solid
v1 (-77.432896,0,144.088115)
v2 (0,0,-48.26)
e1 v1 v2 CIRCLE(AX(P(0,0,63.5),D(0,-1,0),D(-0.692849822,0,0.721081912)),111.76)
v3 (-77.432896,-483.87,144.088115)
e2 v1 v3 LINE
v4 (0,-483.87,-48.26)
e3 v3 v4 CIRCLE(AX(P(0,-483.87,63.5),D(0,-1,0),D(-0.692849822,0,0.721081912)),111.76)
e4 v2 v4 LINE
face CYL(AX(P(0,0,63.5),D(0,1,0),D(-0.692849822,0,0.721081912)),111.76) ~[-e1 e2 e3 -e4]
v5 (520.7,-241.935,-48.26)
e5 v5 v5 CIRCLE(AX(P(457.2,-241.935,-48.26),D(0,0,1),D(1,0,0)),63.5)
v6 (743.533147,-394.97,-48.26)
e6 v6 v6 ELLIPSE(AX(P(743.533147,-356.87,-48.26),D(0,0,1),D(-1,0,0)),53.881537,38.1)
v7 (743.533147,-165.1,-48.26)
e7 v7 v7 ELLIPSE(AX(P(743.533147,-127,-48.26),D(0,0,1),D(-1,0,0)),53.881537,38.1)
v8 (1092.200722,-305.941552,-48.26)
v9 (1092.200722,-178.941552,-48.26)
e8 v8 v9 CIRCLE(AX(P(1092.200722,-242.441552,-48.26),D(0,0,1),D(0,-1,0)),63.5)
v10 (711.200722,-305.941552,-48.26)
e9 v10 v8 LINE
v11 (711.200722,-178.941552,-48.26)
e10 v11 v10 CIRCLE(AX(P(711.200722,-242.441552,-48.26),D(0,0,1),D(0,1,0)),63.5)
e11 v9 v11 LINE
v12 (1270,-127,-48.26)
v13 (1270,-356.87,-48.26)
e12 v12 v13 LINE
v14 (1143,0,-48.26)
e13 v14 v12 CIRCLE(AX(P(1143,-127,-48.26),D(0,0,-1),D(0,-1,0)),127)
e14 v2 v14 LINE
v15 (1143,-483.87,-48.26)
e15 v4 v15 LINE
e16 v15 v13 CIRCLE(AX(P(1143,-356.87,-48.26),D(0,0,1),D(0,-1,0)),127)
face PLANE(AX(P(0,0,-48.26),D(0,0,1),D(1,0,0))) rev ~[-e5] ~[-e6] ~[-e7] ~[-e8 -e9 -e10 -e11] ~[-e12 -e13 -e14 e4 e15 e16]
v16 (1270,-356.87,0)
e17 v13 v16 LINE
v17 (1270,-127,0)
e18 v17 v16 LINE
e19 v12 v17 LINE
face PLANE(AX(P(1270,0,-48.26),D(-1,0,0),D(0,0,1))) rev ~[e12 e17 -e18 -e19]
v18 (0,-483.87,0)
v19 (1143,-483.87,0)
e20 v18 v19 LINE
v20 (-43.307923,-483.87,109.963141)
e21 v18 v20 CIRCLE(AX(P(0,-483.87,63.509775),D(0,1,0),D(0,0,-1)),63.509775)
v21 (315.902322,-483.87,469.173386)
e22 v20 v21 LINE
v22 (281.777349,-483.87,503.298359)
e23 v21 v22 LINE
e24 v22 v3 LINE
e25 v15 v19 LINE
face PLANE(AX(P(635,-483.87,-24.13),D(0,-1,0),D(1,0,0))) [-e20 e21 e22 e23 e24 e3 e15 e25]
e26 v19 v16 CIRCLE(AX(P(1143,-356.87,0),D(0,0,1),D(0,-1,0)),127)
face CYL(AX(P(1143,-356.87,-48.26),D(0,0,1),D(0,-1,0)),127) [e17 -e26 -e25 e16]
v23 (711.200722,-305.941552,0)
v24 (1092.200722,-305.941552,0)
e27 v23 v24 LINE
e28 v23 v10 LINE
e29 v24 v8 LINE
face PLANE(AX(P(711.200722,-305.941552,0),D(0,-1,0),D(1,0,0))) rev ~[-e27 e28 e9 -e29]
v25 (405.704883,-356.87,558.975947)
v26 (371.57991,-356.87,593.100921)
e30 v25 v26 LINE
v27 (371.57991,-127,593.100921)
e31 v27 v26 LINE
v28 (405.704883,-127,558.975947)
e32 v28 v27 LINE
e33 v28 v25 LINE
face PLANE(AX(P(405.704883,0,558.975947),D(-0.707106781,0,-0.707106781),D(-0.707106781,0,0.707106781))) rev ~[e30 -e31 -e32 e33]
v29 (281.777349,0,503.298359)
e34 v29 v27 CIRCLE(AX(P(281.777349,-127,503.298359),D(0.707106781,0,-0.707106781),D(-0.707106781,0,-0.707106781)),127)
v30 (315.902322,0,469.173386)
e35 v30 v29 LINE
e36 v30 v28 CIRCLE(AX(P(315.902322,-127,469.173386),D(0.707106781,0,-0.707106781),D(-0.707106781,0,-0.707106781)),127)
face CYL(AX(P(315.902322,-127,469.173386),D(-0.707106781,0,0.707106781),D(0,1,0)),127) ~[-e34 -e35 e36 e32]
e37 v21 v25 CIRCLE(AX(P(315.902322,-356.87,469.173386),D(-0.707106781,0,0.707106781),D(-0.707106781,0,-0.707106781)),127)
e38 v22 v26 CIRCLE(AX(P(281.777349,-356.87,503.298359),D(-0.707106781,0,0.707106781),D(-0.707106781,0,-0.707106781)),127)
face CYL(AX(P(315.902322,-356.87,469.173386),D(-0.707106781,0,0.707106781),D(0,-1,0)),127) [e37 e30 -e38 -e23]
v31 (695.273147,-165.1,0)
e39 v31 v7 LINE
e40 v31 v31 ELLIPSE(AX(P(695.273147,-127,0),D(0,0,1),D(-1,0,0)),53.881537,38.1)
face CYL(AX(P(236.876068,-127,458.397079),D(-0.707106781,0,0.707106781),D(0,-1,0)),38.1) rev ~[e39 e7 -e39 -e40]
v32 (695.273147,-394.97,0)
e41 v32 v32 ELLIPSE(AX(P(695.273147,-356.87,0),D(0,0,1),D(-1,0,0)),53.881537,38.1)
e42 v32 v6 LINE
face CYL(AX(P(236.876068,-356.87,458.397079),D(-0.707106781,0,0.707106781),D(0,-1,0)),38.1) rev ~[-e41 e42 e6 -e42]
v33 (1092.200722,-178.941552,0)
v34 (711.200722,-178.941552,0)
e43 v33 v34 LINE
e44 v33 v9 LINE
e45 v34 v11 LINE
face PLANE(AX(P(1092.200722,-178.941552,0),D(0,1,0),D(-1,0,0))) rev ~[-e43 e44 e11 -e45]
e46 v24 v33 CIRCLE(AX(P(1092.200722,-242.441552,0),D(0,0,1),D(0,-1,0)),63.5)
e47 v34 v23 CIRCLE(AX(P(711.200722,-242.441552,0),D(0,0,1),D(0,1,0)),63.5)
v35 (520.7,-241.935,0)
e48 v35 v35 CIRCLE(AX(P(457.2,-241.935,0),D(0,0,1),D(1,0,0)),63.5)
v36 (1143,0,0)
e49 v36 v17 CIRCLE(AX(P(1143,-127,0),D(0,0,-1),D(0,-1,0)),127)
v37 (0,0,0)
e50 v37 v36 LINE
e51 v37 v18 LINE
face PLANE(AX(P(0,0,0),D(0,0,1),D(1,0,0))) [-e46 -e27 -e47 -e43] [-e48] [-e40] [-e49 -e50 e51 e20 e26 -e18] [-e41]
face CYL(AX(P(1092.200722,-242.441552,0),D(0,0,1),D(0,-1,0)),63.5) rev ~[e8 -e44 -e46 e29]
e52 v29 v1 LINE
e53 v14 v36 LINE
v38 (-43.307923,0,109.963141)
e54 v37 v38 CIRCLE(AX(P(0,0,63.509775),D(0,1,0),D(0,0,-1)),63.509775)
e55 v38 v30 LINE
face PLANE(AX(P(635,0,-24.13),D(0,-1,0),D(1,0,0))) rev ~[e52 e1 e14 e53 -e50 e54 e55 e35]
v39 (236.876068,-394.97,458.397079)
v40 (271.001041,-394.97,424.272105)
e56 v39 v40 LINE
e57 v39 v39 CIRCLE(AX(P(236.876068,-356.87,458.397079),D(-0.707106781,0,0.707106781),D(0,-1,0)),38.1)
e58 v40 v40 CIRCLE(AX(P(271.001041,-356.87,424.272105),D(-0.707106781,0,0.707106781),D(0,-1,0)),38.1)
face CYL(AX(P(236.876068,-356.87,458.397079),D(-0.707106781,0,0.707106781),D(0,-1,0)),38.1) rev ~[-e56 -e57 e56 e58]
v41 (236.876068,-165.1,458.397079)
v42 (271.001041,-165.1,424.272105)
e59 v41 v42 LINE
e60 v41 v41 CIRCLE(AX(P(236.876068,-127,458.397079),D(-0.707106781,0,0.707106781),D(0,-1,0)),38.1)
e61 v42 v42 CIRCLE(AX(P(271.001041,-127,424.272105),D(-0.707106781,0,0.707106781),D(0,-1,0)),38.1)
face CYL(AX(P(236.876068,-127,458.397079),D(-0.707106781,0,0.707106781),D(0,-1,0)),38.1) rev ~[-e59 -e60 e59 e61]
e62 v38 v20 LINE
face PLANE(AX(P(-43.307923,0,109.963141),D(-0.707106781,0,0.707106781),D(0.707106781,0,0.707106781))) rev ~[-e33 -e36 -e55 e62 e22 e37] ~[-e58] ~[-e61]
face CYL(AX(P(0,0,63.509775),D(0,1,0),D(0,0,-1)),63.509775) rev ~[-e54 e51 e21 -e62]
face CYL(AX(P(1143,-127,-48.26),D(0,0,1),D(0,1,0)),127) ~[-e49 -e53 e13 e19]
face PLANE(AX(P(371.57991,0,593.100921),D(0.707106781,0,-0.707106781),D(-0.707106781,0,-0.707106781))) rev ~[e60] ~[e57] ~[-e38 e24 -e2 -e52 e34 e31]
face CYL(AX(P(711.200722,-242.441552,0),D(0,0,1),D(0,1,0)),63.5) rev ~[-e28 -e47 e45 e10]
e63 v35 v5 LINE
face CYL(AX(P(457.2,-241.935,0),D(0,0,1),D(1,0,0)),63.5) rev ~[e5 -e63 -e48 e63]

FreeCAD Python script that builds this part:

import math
import FreeCAD as App
import Part
import Sketcher

V = App.Vector
Q = App.Units.Quantity


def edges_at(feature, points):
    """Names of the edges that pass closest to the given points."""
    edges = feature.Shape.Edges
    near = lambda p: min(range(len(edges)), key=lambda i: edges[i].distToShape(Part.Vertex(*p))[0])
    return sorted({f"Edge{near(p) + 1}" for p in points})

doc = App.newDocument("Part")
params = doc.addObject("Spreadsheet::Sheet", "Params")
for row, (alias, value) in enumerate([
    ("sketch1_radius", "4.4 in"),
    ("sketch1_width", "50 in"),
    ("sketch1_length", "25 in"),
    ("sketch1_length2", "25 in"),
    ("sketch1_height", "1.9 in"),
    ("pad1_length", "19.05 in"),
    ("sketch2_diameter", "5 in"),
    ("sketch2_width", "15 in"),
    ("fillet_radius", "5 in"),
    ("sketch3_diameter", "3 in"),
], start=1):
    params.set(f"A{row}", alias)
    params.set(f"B{row}", "=" + value)
    params.setAlias(f"B{row}", alias)

body = doc.addObject("PartDesign::Body", "Body")

# Sketch on XZ plane
sketch1 = body.newObject("Sketcher::SketchObject", "Sketch")
sketch1.AttachmentSupport = (doc.getObject("XZ_Plane"), [""])
sketch1.MapMode = "FlatFace"
sketch1.addGeometry([
    Part.LineSegment(V(0, -48.26, 0), V(1270, -48.26, 0)),  # 0
    Part.LineSegment(V(1270, -48.26, 0), V(1270, 0, 0)),  # 1
    Part.LineSegment(V(1270, 0, 0), V(0, 0, 0)),  # 2
    Part.ArcOfCircle(Part.Circle(V(0, 63.509775, 0), V(0, 0, 1), 63.509775), math.radians(132.993044), math.radians(270)),  # 3
    Part.LineSegment(V(-43.307923, 109.963141, 0), V(405.704883, 558.975947, 0)),  # 4
    Part.LineSegment(V(405.704883, 558.975947, 0), V(371.57991, 593.100921, 0)),  # 5
    Part.LineSegment(V(371.57991, 593.100921, 0), V(-77.432896, 144.088115, 0)),  # 6
    Part.ArcOfCircle(Part.Circle(V(0, 63.5, 0), V(0, 0, 1), 111.76), math.radians(133.856122), math.radians(270)),  # 7
], False)
sketch1.addConstraint([
    Sketcher.Constraint("Coincident", 0, 2, 1, 1),
    Sketcher.Constraint("Coincident", 1, 2, 2, 1),
    Sketcher.Constraint("Coincident", 2, 2, 3, 2),
    Sketcher.Constraint("Coincident", 3, 1, 4, 1),
    Sketcher.Constraint("Coincident", 4, 2, 5, 1),
    Sketcher.Constraint("Coincident", 5, 2, 6, 1),
    Sketcher.Constraint("Coincident", 6, 2, 7, 1),
    Sketcher.Constraint("Coincident", 7, 2, 0, 1),
    Sketcher.Constraint("Horizontal", 0),
    Sketcher.Constraint("Vertical", 1),
    Sketcher.Constraint("Horizontal", 2),
    Sketcher.Constraint("Coincident", 2, 2, -1, 1),
    Sketcher.Constraint("PointOnObject", 3, 3, -2),
    Sketcher.Constraint("PointOnObject", 7, 3, -2),
    Sketcher.Constraint("PointOnObject", 7, 2, -2),
    Sketcher.Constraint("Radius", 7, Q("4.4 in")),
    Sketcher.Constraint("DistanceX", 0, 1, 0, 2, Q("50 in")),
    Sketcher.Constraint("Distance", 4, Q("25 in")),
    Sketcher.Constraint("Distance", 6, Q("25 in")),
    Sketcher.Constraint("DistanceY", 1, 1, 1, 2, Q("1.9 in")),
    Sketcher.Constraint("Distance", 5, Q("1.9 in")),
    Sketcher.Constraint("Radius", 3, Q("63.509775 mm")),
    Sketcher.Constraint("DistanceY", -1, 1, 3, 1, Q("109.963141 mm")),
    Sketcher.Constraint("DistanceX", -1, 1, 5, 2, Q("371.57991 mm")),
    Sketcher.Constraint("DistanceY", -1, 1, 5, 2, Q("593.100921 mm")),
])
sketch1.setExpression("Constraints[15]", "Params.sketch1_radius")
sketch1.setExpression("Constraints[16]", "Params.sketch1_width")
sketch1.setExpression("Constraints[17]", "Params.sketch1_length")
sketch1.setExpression("Constraints[18]", "Params.sketch1_length2")
sketch1.setExpression("Constraints[19]", "Params.sketch1_height")
pad1 = body.newObject("PartDesign::Pad", "Pad")
pad1.Profile = sketch1
pad1.setExpression("Length", "Params.pad1_length")

# Sketch on XY plane
sketch2 = body.newObject("Sketcher::SketchObject", "Sketch001")
sketch2.AttachmentSupport = (doc.getObject("XY_Plane"), [""])
sketch2.MapMode = "FlatFace"
sketch2.addGeometry([
    Part.Circle(V(457, -242, 0), V(0, 0, 1), 64),  # 0
    Part.ArcOfCircle(Part.Circle(V(1092, -242, 0), V(0, 0, 1), 64), math.radians(-90), math.radians(90)),  # 1
    Part.LineSegment(V(1092, -179, 0), V(711, -179, 0)),  # 2
    Part.ArcOfCircle(Part.Circle(V(711, -242, 0), V(0, 0, 1), 64), math.radians(90), math.radians(270)),  # 3
    Part.LineSegment(V(711, -306, 0), V(1092, -306, 0)),  # 4
], False)
sketch2.addConstraint([
    Sketcher.Constraint("Tangent", 1, 2, 2, 1),
    Sketcher.Constraint("Tangent", 2, 2, 3, 1),
    Sketcher.Constraint("Tangent", 3, 2, 4, 1),
    Sketcher.Constraint("Tangent", 4, 2, 1, 1),
    Sketcher.Constraint("Horizontal", 2),
    Sketcher.Constraint("Horizontal", 4),
    Sketcher.Constraint("Equal", 0, 1),
    Sketcher.Constraint("Diameter", 0, Q("5 in")),
    Sketcher.Constraint("DistanceX", 2, 2, 2, 1, Q("15 in")),
    Sketcher.Constraint("DistanceX", -1, 1, 0, 3, Q("18 in")),
    Sketcher.Constraint("DistanceY", 0, 3, -1, 1, Q("9.525 in")),
    Sketcher.Constraint("DistanceX", -1, 1, 1, 3, Q("1092.200722 mm")),
    Sketcher.Constraint("DistanceY", 1, 3, -1, 1, Q("242.441552 mm")),
])
sketch2.setExpression("Constraints[7]", "Params.sketch2_diameter")
sketch2.setExpression("Constraints[8]", "Params.sketch2_width")
pocket1 = body.newObject("PartDesign::Pocket", "Pocket")
pocket1.Profile = sketch2
pocket1.Type = "ThroughAll"
doc.recompute()

fillet = body.newObject("PartDesign::Fillet", "Fillet")
fillet.Base = (pocket1, edges_at(pocket1, [
    (388.642, 0, 576.038),
    (388.642, -483.87, 576.038),
    (1270, -483.87, -24.13),
    (1270, 0, -24.13),
]))
fillet.setExpression("Radius", "Params.fillet_radius")

# Sketch on an angled plane
sketch3 = body.newObject("Sketcher::SketchObject", "Sketch002")
sketch3.Placement = App.Placement(V(-110.760505, 0, 110.760505), App.Rotation(V(0, -1, 0), V(0.707106781, 0, 0.707106781), V(-0.707106781, 0, 0.707106781), "ZXY"))
sketch3.addGeometry([
    Part.Circle(V(127, 492, 0), V(0, 0, 1), 38),
    Part.Circle(V(357, 492, 0), V(0, 0, 1), 38),
], False)
sketch3.addConstraint([
    Sketcher.Constraint("Equal", 0, 1),
    Sketcher.Constraint("Horizontal", 0, 3, 1, 3),
    Sketcher.Constraint("Diameter", 0, Q("3 in")),
    Sketcher.Constraint("DistanceX", -1, 1, 0, 3, Q("5 in")),
    Sketcher.Constraint("DistanceX", -1, 1, 1, 3, Q("14.05 in")),
    Sketcher.Constraint("DistanceY", -1, 1, 0, 3, Q("491.632357 mm")),
])
sketch3.setExpression("Constraints[2]", "Params.sketch3_diameter")
pocket2 = body.newObject("PartDesign::Pocket", "Pocket001")
pocket2.Profile = sketch3
pocket2.Type = "ThroughAll"

doc.recompute()
